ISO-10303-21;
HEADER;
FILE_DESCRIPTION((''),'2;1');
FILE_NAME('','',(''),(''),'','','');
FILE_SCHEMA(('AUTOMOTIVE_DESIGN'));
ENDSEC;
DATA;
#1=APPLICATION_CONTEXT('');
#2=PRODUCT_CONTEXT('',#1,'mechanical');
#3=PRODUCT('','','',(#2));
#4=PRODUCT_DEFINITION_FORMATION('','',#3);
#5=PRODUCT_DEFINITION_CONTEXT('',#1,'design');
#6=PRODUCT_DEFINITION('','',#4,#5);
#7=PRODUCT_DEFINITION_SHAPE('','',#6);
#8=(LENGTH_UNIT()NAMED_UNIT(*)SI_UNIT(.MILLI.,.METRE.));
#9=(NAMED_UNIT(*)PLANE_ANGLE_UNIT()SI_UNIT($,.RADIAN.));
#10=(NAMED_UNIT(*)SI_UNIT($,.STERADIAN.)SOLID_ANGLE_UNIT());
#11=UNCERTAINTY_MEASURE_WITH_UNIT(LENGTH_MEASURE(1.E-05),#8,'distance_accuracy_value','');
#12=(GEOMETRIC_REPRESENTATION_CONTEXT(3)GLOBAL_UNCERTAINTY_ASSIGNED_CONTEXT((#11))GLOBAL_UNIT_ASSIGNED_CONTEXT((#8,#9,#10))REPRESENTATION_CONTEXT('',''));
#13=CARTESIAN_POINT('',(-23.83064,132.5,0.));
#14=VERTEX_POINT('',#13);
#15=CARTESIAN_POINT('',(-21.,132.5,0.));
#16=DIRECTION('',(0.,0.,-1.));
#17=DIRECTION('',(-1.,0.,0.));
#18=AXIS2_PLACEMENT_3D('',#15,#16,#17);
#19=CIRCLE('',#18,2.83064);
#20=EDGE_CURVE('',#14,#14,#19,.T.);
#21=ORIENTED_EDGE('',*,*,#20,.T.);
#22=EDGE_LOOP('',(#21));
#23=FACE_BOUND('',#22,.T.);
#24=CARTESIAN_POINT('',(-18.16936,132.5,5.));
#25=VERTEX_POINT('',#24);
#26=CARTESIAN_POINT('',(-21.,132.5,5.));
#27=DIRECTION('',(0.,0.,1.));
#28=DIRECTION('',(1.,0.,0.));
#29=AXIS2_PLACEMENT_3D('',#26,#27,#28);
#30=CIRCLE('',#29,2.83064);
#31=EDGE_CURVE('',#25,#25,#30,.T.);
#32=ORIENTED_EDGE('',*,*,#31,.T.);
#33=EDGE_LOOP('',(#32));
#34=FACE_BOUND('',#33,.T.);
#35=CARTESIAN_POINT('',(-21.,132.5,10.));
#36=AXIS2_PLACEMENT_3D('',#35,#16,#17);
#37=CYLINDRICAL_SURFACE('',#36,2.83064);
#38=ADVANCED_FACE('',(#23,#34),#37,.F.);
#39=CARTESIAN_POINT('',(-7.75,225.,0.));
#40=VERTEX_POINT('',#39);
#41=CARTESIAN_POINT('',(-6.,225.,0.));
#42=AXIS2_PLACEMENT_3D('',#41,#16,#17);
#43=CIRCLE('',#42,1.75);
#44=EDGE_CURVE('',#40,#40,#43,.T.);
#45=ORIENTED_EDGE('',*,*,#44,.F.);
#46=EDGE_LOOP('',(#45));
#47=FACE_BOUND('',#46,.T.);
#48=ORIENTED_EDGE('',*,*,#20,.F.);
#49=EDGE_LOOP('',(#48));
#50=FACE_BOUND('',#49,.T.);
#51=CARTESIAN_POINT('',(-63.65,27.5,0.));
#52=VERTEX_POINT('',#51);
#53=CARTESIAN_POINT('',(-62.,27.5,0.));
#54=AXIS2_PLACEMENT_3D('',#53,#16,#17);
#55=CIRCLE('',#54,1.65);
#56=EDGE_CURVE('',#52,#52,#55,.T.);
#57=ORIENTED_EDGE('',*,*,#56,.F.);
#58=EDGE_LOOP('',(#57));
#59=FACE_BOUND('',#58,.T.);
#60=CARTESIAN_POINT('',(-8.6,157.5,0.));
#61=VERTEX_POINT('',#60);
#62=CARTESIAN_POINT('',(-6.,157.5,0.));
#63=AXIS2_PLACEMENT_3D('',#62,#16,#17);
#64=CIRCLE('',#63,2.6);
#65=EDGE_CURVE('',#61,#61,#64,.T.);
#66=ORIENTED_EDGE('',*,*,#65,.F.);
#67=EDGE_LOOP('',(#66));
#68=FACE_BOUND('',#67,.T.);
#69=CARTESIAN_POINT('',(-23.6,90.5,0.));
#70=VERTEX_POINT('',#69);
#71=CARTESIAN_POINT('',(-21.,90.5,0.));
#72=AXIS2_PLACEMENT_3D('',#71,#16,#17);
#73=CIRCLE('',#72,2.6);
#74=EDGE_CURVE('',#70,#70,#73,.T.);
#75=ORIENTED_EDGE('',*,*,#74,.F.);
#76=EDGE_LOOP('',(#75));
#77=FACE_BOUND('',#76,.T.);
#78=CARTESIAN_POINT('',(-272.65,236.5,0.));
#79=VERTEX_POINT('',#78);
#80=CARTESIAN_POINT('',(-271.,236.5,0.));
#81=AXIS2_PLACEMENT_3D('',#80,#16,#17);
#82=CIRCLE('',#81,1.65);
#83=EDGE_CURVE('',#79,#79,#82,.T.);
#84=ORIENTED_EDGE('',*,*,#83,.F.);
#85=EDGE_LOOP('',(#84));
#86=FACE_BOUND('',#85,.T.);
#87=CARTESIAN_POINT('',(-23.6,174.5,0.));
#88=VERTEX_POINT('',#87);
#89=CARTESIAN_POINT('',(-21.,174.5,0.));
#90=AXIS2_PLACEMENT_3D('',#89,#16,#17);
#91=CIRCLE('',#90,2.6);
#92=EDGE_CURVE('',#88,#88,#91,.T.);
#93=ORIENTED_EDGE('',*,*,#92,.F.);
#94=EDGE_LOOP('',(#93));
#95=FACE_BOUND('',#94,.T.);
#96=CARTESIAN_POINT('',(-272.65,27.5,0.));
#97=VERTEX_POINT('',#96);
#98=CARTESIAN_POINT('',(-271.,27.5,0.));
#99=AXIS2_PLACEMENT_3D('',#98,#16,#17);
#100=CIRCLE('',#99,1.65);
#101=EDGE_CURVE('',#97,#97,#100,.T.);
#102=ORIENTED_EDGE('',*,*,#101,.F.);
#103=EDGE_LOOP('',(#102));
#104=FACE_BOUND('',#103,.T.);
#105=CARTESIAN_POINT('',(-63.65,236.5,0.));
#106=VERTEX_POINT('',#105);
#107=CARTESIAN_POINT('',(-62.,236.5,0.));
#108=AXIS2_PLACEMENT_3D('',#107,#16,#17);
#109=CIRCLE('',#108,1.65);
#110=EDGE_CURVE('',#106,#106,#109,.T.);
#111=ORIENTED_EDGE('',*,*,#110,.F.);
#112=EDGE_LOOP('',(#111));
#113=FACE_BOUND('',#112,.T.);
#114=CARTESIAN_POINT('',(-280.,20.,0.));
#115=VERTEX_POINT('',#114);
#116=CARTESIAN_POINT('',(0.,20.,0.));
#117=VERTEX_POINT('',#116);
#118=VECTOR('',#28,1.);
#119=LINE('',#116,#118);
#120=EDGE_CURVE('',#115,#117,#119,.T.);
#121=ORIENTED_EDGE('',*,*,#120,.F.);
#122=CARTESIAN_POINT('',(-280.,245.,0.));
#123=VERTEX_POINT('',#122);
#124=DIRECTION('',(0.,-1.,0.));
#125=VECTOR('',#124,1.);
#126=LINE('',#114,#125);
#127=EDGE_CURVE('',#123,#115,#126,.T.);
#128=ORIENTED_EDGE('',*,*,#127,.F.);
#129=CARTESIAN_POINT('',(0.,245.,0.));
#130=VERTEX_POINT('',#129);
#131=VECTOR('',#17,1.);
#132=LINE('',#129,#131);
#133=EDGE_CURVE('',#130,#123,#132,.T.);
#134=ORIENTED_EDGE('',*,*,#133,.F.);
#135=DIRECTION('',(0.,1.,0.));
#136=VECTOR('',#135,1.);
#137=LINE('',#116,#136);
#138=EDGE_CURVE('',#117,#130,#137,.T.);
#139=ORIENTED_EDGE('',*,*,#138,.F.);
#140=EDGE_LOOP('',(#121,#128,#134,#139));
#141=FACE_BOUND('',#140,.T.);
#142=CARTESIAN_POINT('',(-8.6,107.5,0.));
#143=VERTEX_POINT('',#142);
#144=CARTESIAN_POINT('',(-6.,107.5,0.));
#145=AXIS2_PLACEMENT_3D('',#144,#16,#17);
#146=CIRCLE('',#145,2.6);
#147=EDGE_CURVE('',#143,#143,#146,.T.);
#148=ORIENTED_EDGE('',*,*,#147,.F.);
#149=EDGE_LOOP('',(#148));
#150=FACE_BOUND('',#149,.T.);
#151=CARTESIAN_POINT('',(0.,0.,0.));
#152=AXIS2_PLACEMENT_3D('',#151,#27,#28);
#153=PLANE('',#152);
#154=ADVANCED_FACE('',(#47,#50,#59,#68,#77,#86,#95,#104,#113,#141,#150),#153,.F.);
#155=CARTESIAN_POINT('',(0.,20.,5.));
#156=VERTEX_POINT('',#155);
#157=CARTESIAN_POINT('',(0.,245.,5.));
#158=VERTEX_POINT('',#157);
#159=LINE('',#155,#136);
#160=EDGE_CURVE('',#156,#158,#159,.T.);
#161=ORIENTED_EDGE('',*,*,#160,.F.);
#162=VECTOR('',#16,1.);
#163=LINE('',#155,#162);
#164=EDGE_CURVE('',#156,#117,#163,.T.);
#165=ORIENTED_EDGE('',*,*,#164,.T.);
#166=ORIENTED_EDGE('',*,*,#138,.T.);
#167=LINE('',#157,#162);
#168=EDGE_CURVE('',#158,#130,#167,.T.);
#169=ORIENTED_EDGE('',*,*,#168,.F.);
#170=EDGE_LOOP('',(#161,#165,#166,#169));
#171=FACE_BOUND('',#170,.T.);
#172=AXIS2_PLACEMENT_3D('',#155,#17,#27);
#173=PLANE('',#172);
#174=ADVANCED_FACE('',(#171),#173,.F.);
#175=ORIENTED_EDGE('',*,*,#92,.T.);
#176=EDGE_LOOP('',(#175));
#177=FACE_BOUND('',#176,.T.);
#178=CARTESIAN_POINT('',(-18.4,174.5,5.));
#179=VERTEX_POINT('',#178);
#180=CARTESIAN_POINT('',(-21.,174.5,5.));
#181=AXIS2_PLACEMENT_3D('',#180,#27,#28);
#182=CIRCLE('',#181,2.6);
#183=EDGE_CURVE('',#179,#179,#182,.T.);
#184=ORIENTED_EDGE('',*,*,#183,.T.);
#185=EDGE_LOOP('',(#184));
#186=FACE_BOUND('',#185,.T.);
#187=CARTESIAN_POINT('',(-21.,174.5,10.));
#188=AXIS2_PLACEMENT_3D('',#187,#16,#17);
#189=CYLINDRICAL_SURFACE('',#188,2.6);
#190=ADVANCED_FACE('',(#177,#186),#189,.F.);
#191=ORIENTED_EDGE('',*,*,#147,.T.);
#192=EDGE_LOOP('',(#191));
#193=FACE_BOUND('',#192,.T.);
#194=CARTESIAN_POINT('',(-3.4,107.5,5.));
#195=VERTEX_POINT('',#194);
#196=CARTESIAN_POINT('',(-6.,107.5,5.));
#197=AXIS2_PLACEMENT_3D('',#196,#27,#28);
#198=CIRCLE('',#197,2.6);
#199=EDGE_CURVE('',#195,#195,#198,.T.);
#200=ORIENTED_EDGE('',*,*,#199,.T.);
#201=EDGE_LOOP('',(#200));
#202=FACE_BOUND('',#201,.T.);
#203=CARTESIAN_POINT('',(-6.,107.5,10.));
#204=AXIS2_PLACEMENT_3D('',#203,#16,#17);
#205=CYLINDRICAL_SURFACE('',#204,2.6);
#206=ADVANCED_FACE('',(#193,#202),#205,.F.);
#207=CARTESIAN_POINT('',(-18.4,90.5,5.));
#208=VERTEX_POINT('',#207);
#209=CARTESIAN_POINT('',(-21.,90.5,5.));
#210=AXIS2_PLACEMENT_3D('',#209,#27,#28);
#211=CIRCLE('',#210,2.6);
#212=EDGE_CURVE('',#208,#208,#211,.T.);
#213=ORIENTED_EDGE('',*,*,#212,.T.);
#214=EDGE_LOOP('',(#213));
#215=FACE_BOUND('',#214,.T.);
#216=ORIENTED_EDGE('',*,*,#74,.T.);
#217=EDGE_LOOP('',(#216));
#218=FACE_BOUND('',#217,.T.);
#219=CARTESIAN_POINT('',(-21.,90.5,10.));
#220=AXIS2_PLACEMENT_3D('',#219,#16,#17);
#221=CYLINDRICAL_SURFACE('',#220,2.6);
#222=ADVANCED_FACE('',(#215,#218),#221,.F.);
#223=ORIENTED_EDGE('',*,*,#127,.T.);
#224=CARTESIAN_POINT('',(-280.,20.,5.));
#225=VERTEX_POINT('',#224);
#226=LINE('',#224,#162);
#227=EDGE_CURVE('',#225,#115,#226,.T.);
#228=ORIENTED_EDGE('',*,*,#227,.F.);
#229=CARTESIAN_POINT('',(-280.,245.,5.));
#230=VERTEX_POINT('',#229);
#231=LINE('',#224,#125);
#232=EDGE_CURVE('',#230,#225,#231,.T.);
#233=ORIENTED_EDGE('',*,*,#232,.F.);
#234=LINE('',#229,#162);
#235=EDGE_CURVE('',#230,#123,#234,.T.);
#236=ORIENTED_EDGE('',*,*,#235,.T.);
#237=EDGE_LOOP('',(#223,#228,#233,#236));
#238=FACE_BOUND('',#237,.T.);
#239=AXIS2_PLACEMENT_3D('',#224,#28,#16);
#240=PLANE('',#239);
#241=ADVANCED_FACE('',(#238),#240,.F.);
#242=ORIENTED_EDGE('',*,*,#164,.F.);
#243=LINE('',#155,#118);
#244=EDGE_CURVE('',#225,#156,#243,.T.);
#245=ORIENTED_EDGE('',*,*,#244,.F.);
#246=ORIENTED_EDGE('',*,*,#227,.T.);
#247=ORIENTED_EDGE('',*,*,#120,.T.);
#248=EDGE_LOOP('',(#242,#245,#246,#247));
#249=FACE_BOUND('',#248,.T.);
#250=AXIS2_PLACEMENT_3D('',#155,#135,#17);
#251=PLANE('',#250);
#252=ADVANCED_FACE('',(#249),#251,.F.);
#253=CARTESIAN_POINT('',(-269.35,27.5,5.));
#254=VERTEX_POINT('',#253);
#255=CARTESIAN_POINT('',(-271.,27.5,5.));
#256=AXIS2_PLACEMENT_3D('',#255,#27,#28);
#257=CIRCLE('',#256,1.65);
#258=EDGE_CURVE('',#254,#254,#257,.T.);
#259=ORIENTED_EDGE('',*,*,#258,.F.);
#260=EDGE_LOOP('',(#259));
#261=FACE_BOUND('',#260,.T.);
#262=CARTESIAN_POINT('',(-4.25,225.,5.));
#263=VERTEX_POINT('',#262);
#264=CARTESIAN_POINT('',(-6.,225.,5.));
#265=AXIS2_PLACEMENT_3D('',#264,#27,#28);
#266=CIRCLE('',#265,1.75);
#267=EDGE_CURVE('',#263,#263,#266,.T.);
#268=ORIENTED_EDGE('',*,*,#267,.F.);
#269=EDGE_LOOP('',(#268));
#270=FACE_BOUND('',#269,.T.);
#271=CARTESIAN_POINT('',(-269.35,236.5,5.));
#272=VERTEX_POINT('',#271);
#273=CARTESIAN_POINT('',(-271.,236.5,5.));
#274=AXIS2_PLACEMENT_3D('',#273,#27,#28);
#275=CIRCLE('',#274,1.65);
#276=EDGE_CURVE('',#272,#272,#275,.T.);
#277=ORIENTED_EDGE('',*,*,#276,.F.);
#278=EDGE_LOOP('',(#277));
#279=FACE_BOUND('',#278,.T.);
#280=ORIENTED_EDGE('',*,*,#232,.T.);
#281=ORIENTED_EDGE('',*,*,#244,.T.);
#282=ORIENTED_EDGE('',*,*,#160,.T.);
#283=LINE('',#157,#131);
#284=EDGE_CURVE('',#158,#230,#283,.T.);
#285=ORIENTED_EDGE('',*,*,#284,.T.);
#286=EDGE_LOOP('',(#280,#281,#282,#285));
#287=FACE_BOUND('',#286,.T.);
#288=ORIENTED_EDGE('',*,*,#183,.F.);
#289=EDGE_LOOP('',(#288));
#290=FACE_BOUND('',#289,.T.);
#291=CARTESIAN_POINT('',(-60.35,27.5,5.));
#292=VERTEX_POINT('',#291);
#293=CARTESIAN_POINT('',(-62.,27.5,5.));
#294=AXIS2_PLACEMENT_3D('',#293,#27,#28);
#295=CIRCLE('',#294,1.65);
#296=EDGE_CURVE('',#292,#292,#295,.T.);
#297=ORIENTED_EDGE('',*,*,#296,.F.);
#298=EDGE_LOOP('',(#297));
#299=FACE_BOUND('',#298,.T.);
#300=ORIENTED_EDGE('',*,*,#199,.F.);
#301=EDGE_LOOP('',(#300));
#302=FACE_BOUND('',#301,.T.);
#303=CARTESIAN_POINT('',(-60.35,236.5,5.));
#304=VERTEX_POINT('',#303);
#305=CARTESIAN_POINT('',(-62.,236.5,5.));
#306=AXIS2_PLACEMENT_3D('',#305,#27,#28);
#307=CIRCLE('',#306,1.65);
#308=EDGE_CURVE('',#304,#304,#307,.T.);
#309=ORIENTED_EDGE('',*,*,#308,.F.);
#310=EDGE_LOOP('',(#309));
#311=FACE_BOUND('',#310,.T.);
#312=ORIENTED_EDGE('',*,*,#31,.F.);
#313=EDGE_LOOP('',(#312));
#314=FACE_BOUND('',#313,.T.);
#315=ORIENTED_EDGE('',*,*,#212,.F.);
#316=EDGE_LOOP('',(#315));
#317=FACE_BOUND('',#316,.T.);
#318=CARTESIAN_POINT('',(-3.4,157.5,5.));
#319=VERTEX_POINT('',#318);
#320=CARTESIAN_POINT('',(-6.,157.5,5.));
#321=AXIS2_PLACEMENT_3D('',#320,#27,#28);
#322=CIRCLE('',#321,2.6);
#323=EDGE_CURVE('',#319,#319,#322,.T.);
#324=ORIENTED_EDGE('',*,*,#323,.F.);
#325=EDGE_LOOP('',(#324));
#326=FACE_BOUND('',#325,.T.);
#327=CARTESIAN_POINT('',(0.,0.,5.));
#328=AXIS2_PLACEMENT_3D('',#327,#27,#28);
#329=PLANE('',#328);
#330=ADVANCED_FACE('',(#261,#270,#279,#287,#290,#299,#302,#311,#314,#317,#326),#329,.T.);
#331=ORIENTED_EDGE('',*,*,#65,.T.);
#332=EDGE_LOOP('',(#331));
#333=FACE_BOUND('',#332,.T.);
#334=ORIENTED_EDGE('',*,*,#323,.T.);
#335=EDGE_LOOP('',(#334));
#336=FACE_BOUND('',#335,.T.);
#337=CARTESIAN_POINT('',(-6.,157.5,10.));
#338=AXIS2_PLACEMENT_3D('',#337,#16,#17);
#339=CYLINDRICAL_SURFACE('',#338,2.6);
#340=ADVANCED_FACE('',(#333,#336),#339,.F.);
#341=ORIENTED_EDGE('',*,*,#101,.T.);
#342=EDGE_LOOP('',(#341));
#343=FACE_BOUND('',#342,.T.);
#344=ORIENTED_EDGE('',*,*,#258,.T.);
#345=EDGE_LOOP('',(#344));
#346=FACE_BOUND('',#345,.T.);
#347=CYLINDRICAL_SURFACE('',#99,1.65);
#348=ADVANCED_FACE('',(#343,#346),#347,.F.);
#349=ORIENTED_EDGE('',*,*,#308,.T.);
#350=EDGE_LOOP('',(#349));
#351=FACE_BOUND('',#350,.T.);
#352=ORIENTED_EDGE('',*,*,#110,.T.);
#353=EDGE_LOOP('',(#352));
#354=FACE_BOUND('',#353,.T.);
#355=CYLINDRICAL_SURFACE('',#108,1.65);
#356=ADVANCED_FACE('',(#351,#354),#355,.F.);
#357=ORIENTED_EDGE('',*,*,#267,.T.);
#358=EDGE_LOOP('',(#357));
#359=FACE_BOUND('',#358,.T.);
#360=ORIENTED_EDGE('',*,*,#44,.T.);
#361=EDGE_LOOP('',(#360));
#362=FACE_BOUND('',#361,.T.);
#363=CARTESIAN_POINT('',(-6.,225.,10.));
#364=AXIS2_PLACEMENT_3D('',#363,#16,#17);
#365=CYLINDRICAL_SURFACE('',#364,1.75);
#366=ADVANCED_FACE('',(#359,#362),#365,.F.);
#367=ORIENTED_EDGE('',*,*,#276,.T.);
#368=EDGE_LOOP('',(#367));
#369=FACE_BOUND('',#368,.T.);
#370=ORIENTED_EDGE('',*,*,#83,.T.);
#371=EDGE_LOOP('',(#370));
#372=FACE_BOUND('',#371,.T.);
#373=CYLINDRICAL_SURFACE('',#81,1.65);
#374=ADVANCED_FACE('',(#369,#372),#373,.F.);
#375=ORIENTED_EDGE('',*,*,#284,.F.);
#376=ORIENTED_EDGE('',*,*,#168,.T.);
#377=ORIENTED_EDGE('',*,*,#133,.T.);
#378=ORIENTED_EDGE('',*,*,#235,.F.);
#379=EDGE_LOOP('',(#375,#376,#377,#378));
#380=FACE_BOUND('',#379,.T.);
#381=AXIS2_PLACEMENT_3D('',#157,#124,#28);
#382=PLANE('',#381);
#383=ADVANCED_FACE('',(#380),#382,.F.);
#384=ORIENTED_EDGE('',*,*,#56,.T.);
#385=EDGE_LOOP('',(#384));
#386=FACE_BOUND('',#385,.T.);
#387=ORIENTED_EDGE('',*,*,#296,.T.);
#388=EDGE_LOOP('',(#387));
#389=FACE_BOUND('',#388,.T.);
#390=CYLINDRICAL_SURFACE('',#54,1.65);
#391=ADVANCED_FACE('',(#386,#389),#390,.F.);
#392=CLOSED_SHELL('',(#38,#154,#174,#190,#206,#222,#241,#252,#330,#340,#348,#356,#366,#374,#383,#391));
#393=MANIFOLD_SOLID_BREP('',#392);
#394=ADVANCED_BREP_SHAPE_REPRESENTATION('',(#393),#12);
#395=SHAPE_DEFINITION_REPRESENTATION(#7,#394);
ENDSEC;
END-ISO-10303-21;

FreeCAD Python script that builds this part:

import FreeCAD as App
import Part
import Sketcher
from FreeCAD import Vector


def add_polygon(sketch, points):
    """Adds a closed chain of lines whose ends are joined by coincident constraints."""
    first, n = sketch.GeometryCount, len(points)
    for a, b in zip(points, points[1:] + points[:1]):
        sketch.addGeometry(Part.LineSegment(App.Vector(*a, 0), App.Vector(*b, 0)), False)
    for i in range(n):
        sketch.addConstraint(Sketcher.Constraint("Coincident", first + i, 2, first + (i + 1) % n, 1))

doc = App.newDocument("Part")
body = doc.addObject("PartDesign::Body", "Body")

# Sketch on XY plane
sketch1 = body.newObject("Sketcher::SketchObject", "Sketch")
sketch1.AttachmentSupport = (doc.getObject("XY_Plane"), [""])
sketch1.MapMode = "FlatFace"
add_polygon(sketch1, [(-280, 245), (-280, 20), (0, 20), (0, 245)])  # lines 0-3
sketch1.addConstraint([
    Sketcher.Constraint("Vertical", 0),
    Sketcher.Constraint("Horizontal", 1),
    Sketcher.Constraint("Vertical", 2),
    Sketcher.Constraint("Horizontal", 3),
    Sketcher.Constraint("PointOnObject", 1, 2, -2),
    Sketcher.Constraint("DistanceX", 1, 1, 1, 2, 280.0),
    Sketcher.Constraint("DistanceY", 0, 2, 0, 1, 225.0),
    Sketcher.Constraint("DistanceY", -1, 1, 0, 2, 20.0),
])
pad1 = body.newObject("PartDesign::Pad", "Pad")
pad1.Profile = sketch1
pad1.Length = 5

# Sketch on XY plane
sketch2 = body.newObject("Sketcher::SketchObject", "Sketch001")
sketch2.AttachmentSupport = (doc.getObject("XY_Plane"), [""])
sketch2.MapMode = "FlatFace"
sketch2.addGeometry([
    Part.Circle(Vector(-271, 27.5, 0), Vector(0, 0, 1), 1.65),
    Part.Circle(Vector(-62, 27.5, 0), Vector(0, 0, 1), 1.65),
    Part.Circle(Vector(-271, 236.5, 0), Vector(0, 0, 1), 1.65),
    Part.Circle(Vector(-62, 236.5, 0), Vector(0, 0, 1), 1.65),
], False)
sketch2.addConstraint([
    Sketcher.Constraint("Equal", 0, 1),
    Sketcher.Constraint("Equal", 1, 2),
    Sketcher.Constraint("Equal", 2, 3),
    Sketcher.Constraint("Horizontal", 0, 3, 1, 3),
    Sketcher.Constraint("Horizontal", 2, 3, 3, 3),
    Sketcher.Constraint("Vertical", 0, 3, 2, 3),
    Sketcher.Constraint("Vertical", 1, 3, 3, 3),
    Sketcher.Constraint("Diameter", 0, 3.3),
    Sketcher.Constraint("DistanceX", 0, 3, -1, 1, 271.0),
    Sketcher.Constraint("DistanceX", 1, 3, -1, 1, 62.0),
    Sketcher.Constraint("DistanceY", 0, 3, 2, 3, 209.0),
    Sketcher.Constraint("DistanceY", -1, 1, 0, 3, 27.5),
])
doc.recompute()
hole = body.newObject("PartDesign::Hole", "Hole")
hole.Profile = sketch2
hole.ThreadType = "None"
hole.Diameter = 3.3
hole.DepthType = "Dimension"
hole.Depth = 5
hole.DrillPoint = "Flat"
hole.Reversed = True

# Sketch on XY plane
sketch3 = body.newObject("Sketcher::SketchObject", "Sketch002")
sketch3.AttachmentSupport = (doc.getObject("XY_Plane"), [""])
sketch3.MapMode = "FlatFace"
sketch3.addGeometry([
    Part.Circle(Vector(-6, 107.5, 0), Vector(0, 0, 1), 2.6),  # 0
    Part.Circle(Vector(-6, 157.5, 0), Vector(0, 0, 1), 2.6),  # 1
    Part.Circle(Vector(-21, 90.5, 0), Vector(0, 0, 1), 2.6),  # 2
    Part.Circle(Vector(-21, 132.5, 0), Vector(0, 0, 1), 2.83064),  # 3
    Part.Circle(Vector(-21, 174.5, 0), Vector(0, 0, 1), 2.6),  # 4
    Part.Circle(Vector(-6, 225, 0), Vector(0, 0, 1), 1.75),  # 5
], False)
sketch3.addConstraint([
    Sketcher.Constraint("Equal", 0, 1),
    Sketcher.Constraint("Equal", 1, 2),
    Sketcher.Constraint("Equal", 2, 4),
    Sketcher.Constraint("Vertical", 0, 3, 1, 3),
    Sketcher.Constraint("Vertical", 2, 3, 3, 3),
    Sketcher.Constraint("Vertical", 3, 3, 4, 3),
    Sketcher.Constraint("Vertical", 1, 3, 5, 3),
    Sketcher.Constraint("Diameter", 0, 5.2),
    Sketcher.Constraint("Diameter", 5, 3.5),
    Sketcher.Constraint("DistanceX", 0, 3, -1, 1, 6.0),
    Sketcher.Constraint("DistanceX", 2, 3, -1, 1, 21.0),
    Sketcher.Constraint("DistanceY", -1, 1, 5, 3, 225.0),
    Sketcher.Constraint("DistanceY", 0, 3, 1, 3, 50.0),
    Sketcher.Constraint("DistanceY", 2, 3, 0, 3, 17.0),
    Sketcher.Constraint("DistanceY", 0, 3, 3, 3, 25.0),
    Sketcher.Constraint("DistanceY", 1, 3, 4, 3, 17.0),
    Sketcher.Constraint("DistanceY", -1, 1, 0, 3, 107.5),
    Sketcher.Constraint("Diameter", 3, 5.661281),
])
pocket1 = body.newObject("PartDesign::Pocket", "Pocket")
pocket1.Profile = sketch3
pocket1.Length = 10
pocket1.Reversed = True

doc.recompute()
